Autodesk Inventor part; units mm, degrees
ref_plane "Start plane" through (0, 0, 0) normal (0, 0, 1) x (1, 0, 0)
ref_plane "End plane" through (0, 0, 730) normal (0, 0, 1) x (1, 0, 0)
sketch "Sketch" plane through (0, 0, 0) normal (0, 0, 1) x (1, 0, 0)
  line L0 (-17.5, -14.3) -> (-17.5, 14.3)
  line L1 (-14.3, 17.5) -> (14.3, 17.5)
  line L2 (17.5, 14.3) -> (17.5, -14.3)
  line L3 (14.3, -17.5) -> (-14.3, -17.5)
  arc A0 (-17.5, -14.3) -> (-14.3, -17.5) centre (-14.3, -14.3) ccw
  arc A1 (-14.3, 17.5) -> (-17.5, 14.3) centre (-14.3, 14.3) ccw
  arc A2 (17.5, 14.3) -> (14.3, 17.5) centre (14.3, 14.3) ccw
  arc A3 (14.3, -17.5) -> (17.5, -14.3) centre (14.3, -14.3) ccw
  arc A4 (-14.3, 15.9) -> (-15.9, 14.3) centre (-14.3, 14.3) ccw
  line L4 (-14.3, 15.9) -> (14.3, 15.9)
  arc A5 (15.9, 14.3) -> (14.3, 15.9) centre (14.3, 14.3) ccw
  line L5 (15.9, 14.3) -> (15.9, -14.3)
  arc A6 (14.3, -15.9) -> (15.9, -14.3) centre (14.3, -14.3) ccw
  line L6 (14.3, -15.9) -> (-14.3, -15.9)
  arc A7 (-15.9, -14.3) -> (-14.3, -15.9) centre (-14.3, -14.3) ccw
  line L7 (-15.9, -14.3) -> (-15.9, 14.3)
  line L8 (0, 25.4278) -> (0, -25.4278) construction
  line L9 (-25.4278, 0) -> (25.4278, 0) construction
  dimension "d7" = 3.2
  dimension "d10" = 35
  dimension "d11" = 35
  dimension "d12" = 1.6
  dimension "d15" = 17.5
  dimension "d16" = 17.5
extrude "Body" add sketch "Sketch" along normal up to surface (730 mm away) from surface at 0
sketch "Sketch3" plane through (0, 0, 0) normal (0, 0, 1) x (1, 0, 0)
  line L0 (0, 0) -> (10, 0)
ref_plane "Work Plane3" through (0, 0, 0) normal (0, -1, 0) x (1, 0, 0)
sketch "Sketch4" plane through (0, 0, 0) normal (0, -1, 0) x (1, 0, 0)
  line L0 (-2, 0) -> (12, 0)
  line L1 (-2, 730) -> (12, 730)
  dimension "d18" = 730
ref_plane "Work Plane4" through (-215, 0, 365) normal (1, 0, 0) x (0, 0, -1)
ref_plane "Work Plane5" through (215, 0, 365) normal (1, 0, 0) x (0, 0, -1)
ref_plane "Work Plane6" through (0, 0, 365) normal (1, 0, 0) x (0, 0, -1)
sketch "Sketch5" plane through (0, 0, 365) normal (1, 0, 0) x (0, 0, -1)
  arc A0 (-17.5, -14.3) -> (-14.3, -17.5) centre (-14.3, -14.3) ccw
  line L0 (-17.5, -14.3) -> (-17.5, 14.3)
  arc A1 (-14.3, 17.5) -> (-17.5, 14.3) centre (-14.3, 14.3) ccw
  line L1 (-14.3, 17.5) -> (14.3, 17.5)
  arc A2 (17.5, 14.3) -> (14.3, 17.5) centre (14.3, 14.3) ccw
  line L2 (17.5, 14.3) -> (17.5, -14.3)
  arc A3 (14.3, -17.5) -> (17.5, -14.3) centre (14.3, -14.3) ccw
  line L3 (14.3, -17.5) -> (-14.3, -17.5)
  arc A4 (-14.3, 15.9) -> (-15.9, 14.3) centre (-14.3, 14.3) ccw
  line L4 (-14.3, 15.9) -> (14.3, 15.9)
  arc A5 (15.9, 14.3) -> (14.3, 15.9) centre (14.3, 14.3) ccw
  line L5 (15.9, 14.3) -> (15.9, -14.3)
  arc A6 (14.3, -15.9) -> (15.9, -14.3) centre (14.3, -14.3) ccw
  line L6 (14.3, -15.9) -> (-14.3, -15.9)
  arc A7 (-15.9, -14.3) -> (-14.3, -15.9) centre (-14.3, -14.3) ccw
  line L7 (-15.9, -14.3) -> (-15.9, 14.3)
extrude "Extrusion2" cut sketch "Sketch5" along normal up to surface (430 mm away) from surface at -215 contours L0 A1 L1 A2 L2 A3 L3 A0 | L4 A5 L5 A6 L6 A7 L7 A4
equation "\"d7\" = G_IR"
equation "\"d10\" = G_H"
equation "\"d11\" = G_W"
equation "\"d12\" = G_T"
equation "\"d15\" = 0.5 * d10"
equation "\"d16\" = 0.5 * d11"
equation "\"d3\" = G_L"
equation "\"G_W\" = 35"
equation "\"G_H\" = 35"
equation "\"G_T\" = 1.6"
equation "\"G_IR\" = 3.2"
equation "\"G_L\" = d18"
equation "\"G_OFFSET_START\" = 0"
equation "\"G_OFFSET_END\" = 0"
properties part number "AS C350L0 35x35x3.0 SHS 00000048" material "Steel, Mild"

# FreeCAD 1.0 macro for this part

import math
import FreeCAD as App
import Part
import Sketcher

V = App.Vector
Q = App.Units.Quantity

doc = App.newDocument("Part")
params = doc.addObject("Spreadsheet::Sheet", "Params")
for row, (alias, value) in enumerate([
    ("sketch1_radius", "3.2 mm"),
    ("sketch1_radius2", "1.6 mm"),
    ("pad1_length", "730 mm"),
    ("sketch2_radius", "3.2 mm"),
    ("sketch2_width", "28.6 mm"),
    ("pocket1_length", "430 mm"),
], start=1):
    params.set(f"A{row}", alias)
    params.set(f"B{row}", "=" + value)
    params.setAlias(f"B{row}", alias)

body = doc.addObject("PartDesign::Body", "Body")
body.AllowCompound = True

# Sketch on XY plane
sketch1 = body.newObject("Sketcher::SketchObject", "Sketch")
sketch1.AttachmentSupport = (doc.getObject("XY_Plane"), [""])
sketch1.MapMode = "FlatFace"
sketch1.addGeometry([
    Part.LineSegment(V(-17.5, 14.3, 0), V(-17.5, -14.3, 0)),  # 0
    Part.ArcOfCircle(Part.Circle(V(-14.3, -14.3, 0), V(0, 0, 1), 3.2), math.radians(180), math.radians(270)),  # 1
    Part.LineSegment(V(-14.3, -17.5, 0), V(14.3, -17.5, 0)),  # 2
    Part.ArcOfCircle(Part.Circle(V(14.3, -14.3, 0), V(0, 0, 1), 3.2), math.radians(-90), math.radians(0)),  # 3
    Part.LineSegment(V(17.5, -14.3, 0), V(17.5, 14.3, 0)),  # 4
    Part.ArcOfCircle(Part.Circle(V(14.3, 14.3, 0), V(0, 0, 1), 3.2), math.radians(0), math.radians(90)),  # 5
    Part.LineSegment(V(14.3, 17.5, 0), V(-14.3, 17.5, 0)),  # 6
    Part.ArcOfCircle(Part.Circle(V(-14.3, 14.3, 0), V(0, 0, 1), 3.2), math.radians(90), math.radians(180)),  # 7
    Part.ArcOfCircle(Part.Circle(V(-14.3, 14.3, 0), V(0, 0, 1), 1.6), math.radians(90), math.radians(180)),  # 8
    Part.LineSegment(V(-14.3, 15.9, 0), V(14.3, 15.9, 0)),  # 9
    Part.ArcOfCircle(Part.Circle(V(14.3, 14.3, 0), V(0, 0, 1), 1.6), math.radians(0), math.radians(90)),  # 10
    Part.LineSegment(V(15.9, 14.3, 0), V(15.9, -14.3, 0)),  # 11
    Part.ArcOfCircle(Part.Circle(V(14.3, -14.3, 0), V(0, 0, 1), 1.6), math.radians(-90), math.radians(0)),  # 12
    Part.LineSegment(V(14.3, -15.9, 0), V(-14.3, -15.9, 0)),  # 13
    Part.ArcOfCircle(Part.Circle(V(-14.3, -14.3, 0), V(0, 0, 1), 1.6), math.radians(180), math.radians(270)),  # 14
    Part.LineSegment(V(-15.9, -14.3, 0), V(-15.9, 14.3, 0)),  # 15
], False)
sketch1.addConstraint([
    Sketcher.Constraint("Tangent", 0, 2, 1, 1),
    Sketcher.Constraint("Tangent", 1, 2, 2, 1),
    Sketcher.Constraint("Tangent", 2, 2, 3, 1),
    Sketcher.Constraint("Tangent", 3, 2, 4, 1),
    Sketcher.Constraint("Tangent", 4, 2, 5, 1),
    Sketcher.Constraint("Tangent", 5, 2, 6, 1),
    Sketcher.Constraint("Tangent", 6, 2, 7, 1),
    Sketcher.Constraint("Tangent", 7, 2, 0, 1),
    Sketcher.Constraint("Tangent", 8, 1, 9, 1),
    Sketcher.Constraint("Tangent", 9, 2, 10, 2),
    Sketcher.Constraint("Tangent", 10, 1, 11, 1),
    Sketcher.Constraint("Tangent", 11, 2, 12, 2),
    Sketcher.Constraint("Tangent", 12, 1, 13, 1),
    Sketcher.Constraint("Tangent", 13, 2, 14, 2),
    Sketcher.Constraint("Tangent", 14, 1, 15, 1),
    Sketcher.Constraint("Tangent", 15, 2, 8, 2),
    Sketcher.Constraint("Vertical", 0),
    Sketcher.Constraint("Horizontal", 2),
    Sketcher.Constraint("Vertical", 4),
    Sketcher.Constraint("Horizontal", 6),
    Sketcher.Constraint("Horizontal", 9),
    Sketcher.Constraint("Vertical", 11),
    Sketcher.Constraint("Horizontal", 13),
    Sketcher.Constraint("Vertical", 15),
    Sketcher.Constraint("Coincident", 8, 3, 7, 3),
    Sketcher.Constraint("Coincident", 10, 3, 5, 3),
    Sketcher.Constraint("Coincident", 12, 3, 3, 3),
    Sketcher.Constraint("Equal", 1, 3),
    Sketcher.Constraint("Equal", 3, 5),
    Sketcher.Constraint("Equal", 5, 7),
    Sketcher.Constraint("Equal", 12, 14),
    Sketcher.Constraint("Symmetric", 1, 3, 5, 3, -1, 1),
    Sketcher.Constraint("Equal", 13, 0),
    Sketcher.Constraint("Radius", 1, Q("3.2 mm")),
    Sketcher.Constraint("Radius", 8, Q("1.6 mm")),
    Sketcher.Constraint("DistanceX", 0, 2, -1, 1, Q("17.5 mm")),
])
sketch1.setExpression("Constraints[33]", "Params.sketch1_radius")
sketch1.setExpression("Constraints[34]", "Params.sketch1_radius2")
pad1 = body.newObject("PartDesign::Pad", "Pad")
pad1.Profile = sketch1
pad1.setExpression("Length", "Params.pad1_length")

# Sketch on YZ plane
sketch2 = body.newObject("Sketcher::SketchObject", "Sketch001")
sketch2.AttachmentSupport = (doc.getObject("YZ_Plane"), [""])
sketch2.MapMode = "FlatFace"
sketch2.AttachmentOffset = App.Placement(V(0, 0, -215), App.Rotation())
sketch2.addGeometry([
    Part.LineSegment(V(14.3, 382.5, 0), V(-14.3, 382.5, 0)),  # 0
    Part.ArcOfCircle(Part.Circle(V(-14.3, 379.3, 0), V(0, 0, 1), 3.2), math.radians(90), math.radians(180)),  # 1
    Part.LineSegment(V(-17.5, 379.3, 0), V(-17.5, 350.7, 0)),  # 2
    Part.ArcOfCircle(Part.Circle(V(-14.3, 350.7, 0), V(0, 0, 1), 3.2), math.radians(180), math.radians(270)),  # 3
    Part.LineSegment(V(-14.3, 347.5, 0), V(14.3, 347.5, 0)),  # 4
    Part.ArcOfCircle(Part.Circle(V(14.3, 350.7, 0), V(0, 0, 1), 3.2), math.radians(-90), math.radians(0)),  # 5
    Part.LineSegment(V(17.5, 350.7, 0), V(17.5, 379.3, 0)),  # 6
    Part.ArcOfCircle(Part.Circle(V(14.3, 379.3, 0), V(0, 0, 1), 3.2), math.radians(0), math.radians(90)),  # 7
], False)
sketch2.addConstraint([
    Sketcher.Constraint("Tangent", 0, 2, 1, 1),
    Sketcher.Constraint("Tangent", 1, 2, 2, 1),
    Sketcher.Constraint("Tangent", 2, 2, 3, 1),
    Sketcher.Constraint("Tangent", 3, 2, 4, 1),
    Sketcher.Constraint("Tangent", 4, 2, 5, 1),
    Sketcher.Constraint("Tangent", 5, 2, 6, 1),
    Sketcher.Constraint("Tangent", 6, 2, 7, 1),
    Sketcher.Constraint("Tangent", 7, 2, 0, 1),
    Sketcher.Constraint("Horizontal", 0),
    Sketcher.Constraint("Vertical", 2),
    Sketcher.Constraint("Horizontal", 4),
    Sketcher.Constraint("Vertical", 6),
    Sketcher.Constraint("Equal", 1, 3),
    Sketcher.Constraint("Equal", 3, 5),
    Sketcher.Constraint("Equal", 5, 7),
    Sketcher.Constraint("Equal", 4, 2),
    Sketcher.Constraint("Radius", 1, Q("3.2 mm")),
    Sketcher.Constraint("DistanceX", 0, 2, 0, 1, Q("28.6 mm")),
    Sketcher.Constraint("DistanceX", 1, 3, -1, 1, Q("14.3 mm")),
    Sketcher.Constraint("DistanceY", -1, 1, 1, 3, Q("379.3 mm")),
])
sketch2.setExpression("Constraints[16]", "Params.sketch2_radius")
sketch2.setExpression("Constraints[17]", "Params.sketch2_width")
pocket1 = body.newObject("PartDesign::Pocket", "Pocket")
pocket1.Profile = sketch2
pocket1.setExpression("Length", "Params.pocket1_length")
pocket1.Reversed = True

doc.recompute()
